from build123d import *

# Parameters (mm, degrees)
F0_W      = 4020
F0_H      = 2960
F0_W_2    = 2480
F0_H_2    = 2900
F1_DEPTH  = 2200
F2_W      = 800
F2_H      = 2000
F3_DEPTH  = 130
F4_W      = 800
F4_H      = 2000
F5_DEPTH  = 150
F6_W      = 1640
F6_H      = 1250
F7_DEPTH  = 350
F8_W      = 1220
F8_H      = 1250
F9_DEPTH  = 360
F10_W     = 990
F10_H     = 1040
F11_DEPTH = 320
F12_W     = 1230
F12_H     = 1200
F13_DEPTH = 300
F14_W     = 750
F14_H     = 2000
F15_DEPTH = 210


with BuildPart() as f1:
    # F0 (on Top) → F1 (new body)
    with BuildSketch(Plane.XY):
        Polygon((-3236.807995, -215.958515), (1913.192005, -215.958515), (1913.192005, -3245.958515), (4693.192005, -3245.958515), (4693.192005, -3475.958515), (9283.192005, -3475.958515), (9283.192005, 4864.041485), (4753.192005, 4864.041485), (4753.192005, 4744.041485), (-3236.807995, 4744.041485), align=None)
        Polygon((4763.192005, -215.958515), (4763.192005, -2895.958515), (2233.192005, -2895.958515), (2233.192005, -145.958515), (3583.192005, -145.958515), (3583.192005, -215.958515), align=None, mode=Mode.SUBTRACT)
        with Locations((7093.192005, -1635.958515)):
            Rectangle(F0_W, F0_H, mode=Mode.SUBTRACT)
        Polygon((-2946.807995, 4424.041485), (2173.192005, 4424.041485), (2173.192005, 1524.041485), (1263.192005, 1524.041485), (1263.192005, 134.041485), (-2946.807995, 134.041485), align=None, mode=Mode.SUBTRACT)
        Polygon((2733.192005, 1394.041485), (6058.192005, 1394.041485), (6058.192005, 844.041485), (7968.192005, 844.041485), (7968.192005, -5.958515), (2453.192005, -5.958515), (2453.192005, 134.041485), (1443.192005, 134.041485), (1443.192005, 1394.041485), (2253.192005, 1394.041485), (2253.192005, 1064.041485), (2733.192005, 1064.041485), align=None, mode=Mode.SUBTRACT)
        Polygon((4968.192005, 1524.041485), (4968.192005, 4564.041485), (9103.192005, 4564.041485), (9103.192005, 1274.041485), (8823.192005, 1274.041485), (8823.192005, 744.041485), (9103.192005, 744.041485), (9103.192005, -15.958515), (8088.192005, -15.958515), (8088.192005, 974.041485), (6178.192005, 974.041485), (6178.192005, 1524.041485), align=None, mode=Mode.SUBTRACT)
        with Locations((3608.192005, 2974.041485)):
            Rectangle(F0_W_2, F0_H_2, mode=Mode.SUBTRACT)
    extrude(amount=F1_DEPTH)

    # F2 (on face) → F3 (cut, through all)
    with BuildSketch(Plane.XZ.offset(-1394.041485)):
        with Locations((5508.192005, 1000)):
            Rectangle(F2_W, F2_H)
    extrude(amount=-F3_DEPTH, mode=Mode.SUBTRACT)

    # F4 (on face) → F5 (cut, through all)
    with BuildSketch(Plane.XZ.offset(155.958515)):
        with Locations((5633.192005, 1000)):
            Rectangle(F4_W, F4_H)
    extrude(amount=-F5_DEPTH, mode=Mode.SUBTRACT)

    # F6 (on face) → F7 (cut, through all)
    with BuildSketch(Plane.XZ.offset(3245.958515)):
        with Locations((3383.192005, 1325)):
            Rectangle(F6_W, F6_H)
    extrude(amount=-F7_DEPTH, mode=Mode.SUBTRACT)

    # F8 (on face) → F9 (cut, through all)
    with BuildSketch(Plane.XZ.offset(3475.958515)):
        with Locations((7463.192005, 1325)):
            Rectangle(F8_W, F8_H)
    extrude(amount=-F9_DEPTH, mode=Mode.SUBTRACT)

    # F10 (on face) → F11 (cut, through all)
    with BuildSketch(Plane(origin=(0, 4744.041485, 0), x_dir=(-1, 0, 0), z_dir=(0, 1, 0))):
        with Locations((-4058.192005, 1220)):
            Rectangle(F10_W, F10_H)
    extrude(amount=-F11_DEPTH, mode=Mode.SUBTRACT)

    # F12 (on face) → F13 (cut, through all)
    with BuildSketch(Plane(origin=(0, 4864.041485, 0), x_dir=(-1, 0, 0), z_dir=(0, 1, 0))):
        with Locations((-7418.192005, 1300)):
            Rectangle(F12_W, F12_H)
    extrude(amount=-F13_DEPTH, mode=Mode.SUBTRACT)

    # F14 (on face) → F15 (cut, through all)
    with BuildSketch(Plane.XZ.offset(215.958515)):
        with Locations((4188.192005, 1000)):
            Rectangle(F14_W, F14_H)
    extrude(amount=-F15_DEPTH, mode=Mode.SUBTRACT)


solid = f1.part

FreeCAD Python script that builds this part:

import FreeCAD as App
import Part
import Sketcher
from FreeCAD import Vector
Q = App.Units.Quantity

doc = App.newDocument("Part")
body = doc.addObject("PartDesign::Body", "Body")

sketch1 = body.newObject("Sketcher::SketchObject", "Sketch")
sketch1.AttachmentSupport = (doc.getObject("XY_Plane"), [""])
sketch1.MapMode = "FlatFace"
sketch1.addGeometry(Part.LineSegment(Vector(-3237, -216, 0), Vector(1913, -216, 0)), False)
sketch1.addGeometry(Part.LineSegment(Vector(1913, -216, 0), Vector(1913, -3246, 0)), False)
sketch1.addGeometry(Part.LineSegment(Vector(1913, -3246, 0), Vector(4693, -3246, 0)), False)
sketch1.addGeometry(Part.LineSegment(Vector(4693, -3246, 0), Vector(4693, -3476, 0)), False)
sketch1.addGeometry(Part.LineSegment(Vector(4693, -3476, 0), Vector(9283, -3476, 0)), False)
sketch1.addGeometry(Part.LineSegment(Vector(9283, -3476, 0), Vector(9283, 4864, 0)), False)
sketch1.addGeometry(Part.LineSegment(Vector(9283, 4864, 0), Vector(4753, 4864, 0)), False)
sketch1.addGeometry(Part.LineSegment(Vector(4753, 4864, 0), Vector(4753, 4744, 0)), False)
sketch1.addGeometry(Part.LineSegment(Vector(4753, 4744, 0), Vector(-3237, 4744, 0)), False)
sketch1.addGeometry(Part.LineSegment(Vector(-3237, 4744, 0), Vector(-3237, -216, 0)), False)
sketch1.addGeometry(Part.LineSegment(Vector(3583, -216, 0), Vector(4763, -216, 0)), False)
sketch1.addGeometry(Part.LineSegment(Vector(4763, -216, 0), Vector(4763, -2896, 0)), False)
sketch1.addGeometry(Part.LineSegment(Vector(4763, -2896, 0), Vector(2233, -2896, 0)), False)
sketch1.addGeometry(Part.LineSegment(Vector(2233, -2896, 0), Vector(2233, -146, 0)), False)
sketch1.addGeometry(Part.LineSegment(Vector(2233, -146, 0), Vector(3583, -146, 0)), False)
sketch1.addGeometry(Part.LineSegment(Vector(3583, -146, 0), Vector(3583, -216, 0)), False)
sketch1.addGeometry(Part.LineSegment(Vector(9103, -3116, 0), Vector(5083, -3116, 0)), False)
sketch1.addGeometry(Part.LineSegment(Vector(5083, -3116, 0), Vector(5083, -156, 0)), False)
sketch1.addGeometry(Part.LineSegment(Vector(5083, -156, 0), Vector(9103, -156, 0)), False)
sketch1.addGeometry(Part.LineSegment(Vector(9103, -156, 0), Vector(9103, -3116, 0)), False)
sketch1.addGeometry(Part.LineSegment(Vector(2733, 1064, 0), Vector(2733, 1394, 0)), False)
sketch1.addGeometry(Part.LineSegment(Vector(2733, 1394, 0), Vector(6058, 1394, 0)), False)
sketch1.addGeometry(Part.LineSegment(Vector(6058, 1394, 0), Vector(6058, 844, 0)), False)
sketch1.addGeometry(Part.LineSegment(Vector(6058, 844, 0), Vector(7968, 844, 0)), False)
sketch1.addGeometry(Part.LineSegment(Vector(7968, 844, 0), Vector(7968, -6, 0)), False)
sketch1.addGeometry(Part.LineSegment(Vector(7968, -6, 0), Vector(2453, -6, 0)), False)
sketch1.addGeometry(Part.LineSegment(Vector(2453, -6, 0), Vector(2453, 134, 0)), False)
sketch1.addGeometry(Part.LineSegment(Vector(2453, 134, 0), Vector(1443, 134, 0)), False)
sketch1.addGeometry(Part.LineSegment(Vector(1443, 134, 0), Vector(1443, 1394, 0)), False)
sketch1.addGeometry(Part.LineSegment(Vector(1443, 1394, 0), Vector(2253, 1394, 0)), False)
sketch1.addGeometry(Part.LineSegment(Vector(2253, 1394, 0), Vector(2253, 1064, 0)), False)
sketch1.addGeometry(Part.LineSegment(Vector(2253, 1064, 0), Vector(2733, 1064, 0)), False)
sketch1.addGeometry(Part.LineSegment(Vector(-2947, 134, 0), Vector(-2947, 4424, 0)), False)
sketch1.addGeometry(Part.LineSegment(Vector(-2947, 4424, 0), Vector(2173, 4424, 0)), False)
sketch1.addGeometry(Part.LineSegment(Vector(2173, 4424, 0), Vector(2173, 1524, 0)), False)
sketch1.addGeometry(Part.LineSegment(Vector(2173, 1524, 0), Vector(1263, 1524, 0)), False)
sketch1.addGeometry(Part.LineSegment(Vector(1263, 1524, 0), Vector(1263, 134, 0)), False)
sketch1.addGeometry(Part.LineSegment(Vector(1263, 134, 0), Vector(-2947, 134, 0)), False)
sketch1.addGeometry(Part.LineSegment(Vector(6178, 1524, 0), Vector(4968, 1524, 0)), False)
sketch1.addGeometry(Part.LineSegment(Vector(4968, 1524, 0), Vector(4968, 4564, 0)), False)
sketch1.addGeometry(Part.LineSegment(Vector(4968, 4564, 0), Vector(9103, 4564, 0)), False)
sketch1.addGeometry(Part.LineSegment(Vector(9103, 4564, 0), Vector(9103, 1274, 0)), False)
sketch1.addGeometry(Part.LineSegment(Vector(9103, 1274, 0), Vector(8823, 1274, 0)), False)
sketch1.addGeometry(Part.LineSegment(Vector(8823, 1274, 0), Vector(8823, 744, 0)), False)
sketch1.addGeometry(Part.LineSegment(Vector(8823, 744, 0), Vector(9103, 744, 0)), False)
sketch1.addGeometry(Part.LineSegment(Vector(9103, 744, 0), Vector(9103, -16, 0)), False)
sketch1.addGeometry(Part.LineSegment(Vector(9103, -16, 0), Vector(8088, -16, 0)), False)
sketch1.addGeometry(Part.LineSegment(Vector(8088, -16, 0), Vector(8088, 974, 0)), False)
sketch1.addGeometry(Part.LineSegment(Vector(8088, 974, 0), Vector(6178, 974, 0)), False)
sketch1.addGeometry(Part.LineSegment(Vector(6178, 974, 0), Vector(6178, 1524, 0)), False)
sketch1.addGeometry(Part.LineSegment(Vector(4848, 1524, 0), Vector(2368, 1524, 0)), False)
sketch1.addGeometry(Part.LineSegment(Vector(2368, 1524, 0), Vector(2368, 4424, 0)), False)
sketch1.addGeometry(Part.LineSegment(Vector(2368, 4424, 0), Vector(4848, 4424, 0)), False)
sketch1.addGeometry(Part.LineSegment(Vector(4848, 4424, 0), Vector(4848, 1524, 0)), False)
sketch1.addConstraint(Sketcher.Constraint("Coincident", 0, 2, 1, 1))
sketch1.addConstraint(Sketcher.Constraint("Coincident", 1, 2, 2, 1))
sketch1.addConstraint(Sketcher.Constraint("Coincident", 2, 2, 3, 1))
sketch1.addConstraint(Sketcher.Constraint("Coincident", 3, 2, 4, 1))
sketch1.addConstraint(Sketcher.Constraint("Coincident", 4, 2, 5, 1))
sketch1.addConstraint(Sketcher.Constraint("Coincident", 5, 2, 6, 1))
sketch1.addConstraint(Sketcher.Constraint("Coincident", 6, 2, 7, 1))
sketch1.addConstraint(Sketcher.Constraint("Coincident", 7, 2, 8, 1))
sketch1.addConstraint(Sketcher.Constraint("Coincident", 8, 2, 9, 1))
sketch1.addConstraint(Sketcher.Constraint("Coincident", 9, 2, 0, 1))
sketch1.addConstraint(Sketcher.Constraint("Coincident", 10, 2, 11, 1))
sketch1.addConstraint(Sketcher.Constraint("Coincident", 11, 2, 12, 1))
sketch1.addConstraint(Sketcher.Constraint("Coincident", 12, 2, 13, 1))
sketch1.addConstraint(Sketcher.Constraint("Coincident", 13, 2, 14, 1))
sketch1.addConstraint(Sketcher.Constraint("Coincident", 14, 2, 15, 1))
sketch1.addConstraint(Sketcher.Constraint("Coincident", 15, 2, 10, 1))
sketch1.addConstraint(Sketcher.Constraint("Coincident", 16, 2, 17, 1))
sketch1.addConstraint(Sketcher.Constraint("Coincident", 17, 2, 18, 1))
sketch1.addConstraint(Sketcher.Constraint("Coincident", 18, 2, 19, 1))
sketch1.addConstraint(Sketcher.Constraint("Coincident", 19, 2, 16, 1))
sketch1.addConstraint(Sketcher.Constraint("Coincident", 20, 2, 21, 1))
sketch1.addConstraint(Sketcher.Constraint("Coincident", 21, 2, 22, 1))
sketch1.addConstraint(Sketcher.Constraint("Coincident", 22, 2, 23, 1))
sketch1.addConstraint(Sketcher.Constraint("Coincident", 23, 2, 24, 1))
sketch1.addConstraint(Sketcher.Constraint("Coincident", 24, 2, 25, 1))
sketch1.addConstraint(Sketcher.Constraint("Coincident", 25, 2, 26, 1))
sketch1.addConstraint(Sketcher.Constraint("Coincident", 26, 2, 27, 1))
sketch1.addConstraint(Sketcher.Constraint("Coincident", 27, 2, 28, 1))
sketch1.addConstraint(Sketcher.Constraint("Coincident", 28, 2, 29, 1))
sketch1.addConstraint(Sketcher.Constraint("Coincident", 29, 2, 30, 1))
sketch1.addConstraint(Sketcher.Constraint("Coincident", 30, 2, 31, 1))
sketch1.addConstraint(Sketcher.Constraint("Coincident", 31, 2, 20, 1))
sketch1.addConstraint(Sketcher.Constraint("Coincident", 32, 2, 33, 1))
sketch1.addConstraint(Sketcher.Constraint("Coincident", 33, 2, 34, 1))
sketch1.addConstraint(Sketcher.Constraint("Coincident", 34, 2, 35, 1))
sketch1.addConstraint(Sketcher.Constraint("Coincident", 35, 2, 36, 1))
sketch1.addConstraint(Sketcher.Constraint("Coincident", 36, 2, 37, 1))
sketch1.addConstraint(Sketcher.Constraint("Coincident", 37, 2, 32, 1))
sketch1.addConstraint(Sketcher.Constraint("Coincident", 38, 2, 39, 1))
sketch1.addConstraint(Sketcher.Constraint("Coincident", 39, 2, 40, 1))
sketch1.addConstraint(Sketcher.Constraint("Coincident", 40, 2, 41, 1))
sketch1.addConstraint(Sketcher.Constraint("Coincident", 41, 2, 42, 1))
sketch1.addConstraint(Sketcher.Constraint("Coincident", 42, 2, 43, 1))
sketch1.addConstraint(Sketcher.Constraint("Coincident", 43, 2, 44, 1))
sketch1.addConstraint(Sketcher.Constraint("Coincident", 44, 2, 45, 1))
sketch1.addConstraint(Sketcher.Constraint("Coincident", 45, 2, 46, 1))
sketch1.addConstraint(Sketcher.Constraint("Coincident", 46, 2, 47, 1))
sketch1.addConstraint(Sketcher.Constraint("Coincident", 47, 2, 48, 1))
sketch1.addConstraint(Sketcher.Constraint("Coincident", 48, 2, 49, 1))
sketch1.addConstraint(Sketcher.Constraint("Coincident", 49, 2, 38, 1))
sketch1.addConstraint(Sketcher.Constraint("Coincident", 50, 2, 51, 1))
sketch1.addConstraint(Sketcher.Constraint("Coincident", 51, 2, 52, 1))
sketch1.addConstraint(Sketcher.Constraint("Coincident", 52, 2, 53, 1))
sketch1.addConstraint(Sketcher.Constraint("Coincident", 53, 2, 50, 1))
sketch1.addConstraint(Sketcher.Constraint("Horizontal", 0))
sketch1.addConstraint(Sketcher.Constraint("Vertical", 1))
sketch1.addConstraint(Sketcher.Constraint("Horizontal", 2))
sketch1.addConstraint(Sketcher.Constraint("Vertical", 3))
sketch1.addConstraint(Sketcher.Constraint("Horizontal", 4))
sketch1.addConstraint(Sketcher.Constraint("Vertical", 5))
sketch1.addConstraint(Sketcher.Constraint("Horizontal", 6))
sketch1.addConstraint(Sketcher.Constraint("Vertical", 7))
sketch1.addConstraint(Sketcher.Constraint("Horizontal", 8))
sketch1.addConstraint(Sketcher.Constraint("Vertical", 9))
sketch1.addConstraint(Sketcher.Constraint("Horizontal", 10))
sketch1.addConstraint(Sketcher.Constraint("Vertical", 11))
sketch1.addConstraint(Sketcher.Constraint("Horizontal", 12))
sketch1.addConstraint(Sketcher.Constraint("Vertical", 13))
sketch1.addConstraint(Sketcher.Constraint("Horizontal", 14))
sketch1.addConstraint(Sketcher.Constraint("Vertical", 15))
sketch1.addConstraint(Sketcher.Constraint("Horizontal", 16))
sketch1.addConstraint(Sketcher.Constraint("Vertical", 17))
sketch1.addConstraint(Sketcher.Constraint("Horizontal", 18))
sketch1.addConstraint(Sketcher.Constraint("Vertical", 19))
sketch1.addConstraint(Sketcher.Constraint("Vertical", 20))
sketch1.addConstraint(Sketcher.Constraint("Horizontal", 21))
sketch1.addConstraint(Sketcher.Constraint("Vertical", 22))
sketch1.addConstraint(Sketcher.Constraint("Horizontal", 23))
sketch1.addConstraint(Sketcher.Constraint("Vertical", 24))
sketch1.addConstraint(Sketcher.Constraint("Horizontal", 25))
sketch1.addConstraint(Sketcher.Constraint("Vertical", 26))
sketch1.addConstraint(Sketcher.Constraint("Horizontal", 27))
sketch1.addConstraint(Sketcher.Constraint("Vertical", 28))
sketch1.addConstraint(Sketcher.Constraint("Horizontal", 29))
sketch1.addConstraint(Sketcher.Constraint("Vertical", 30))
sketch1.addConstraint(Sketcher.Constraint("Horizontal", 31))
sketch1.addConstraint(Sketcher.Constraint("Vertical", 32))
sketch1.addConstraint(Sketcher.Constraint("Horizontal", 33))
sketch1.addConstraint(Sketcher.Constraint("Vertical", 34))
sketch1.addConstraint(Sketcher.Constraint("Horizontal", 35))
sketch1.addConstraint(Sketcher.Constraint("Vertical", 36))
sketch1.addConstraint(Sketcher.Constraint("Horizontal", 37))
sketch1.addConstraint(Sketcher.Constraint("Horizontal", 38))
sketch1.addConstraint(Sketcher.Constraint("Vertical", 39))
sketch1.addConstraint(Sketcher.Constraint("Horizontal", 40))
sketch1.addConstraint(Sketcher.Constraint("Vertical", 41))
sketch1.addConstraint(Sketcher.Constraint("Horizontal", 42))
sketch1.addConstraint(Sketcher.Constraint("Vertical", 43))
sketch1.addConstraint(Sketcher.Constraint("Horizontal", 44))
sketch1.addConstraint(Sketcher.Constraint("Vertical", 45))
sketch1.addConstraint(Sketcher.Constraint("Horizontal", 46))
sketch1.addConstraint(Sketcher.Constraint("Vertical", 47))
sketch1.addConstraint(Sketcher.Constraint("Horizontal", 48))
sketch1.addConstraint(Sketcher.Constraint("Vertical", 49))
sketch1.addConstraint(Sketcher.Constraint("Horizontal", 50))
sketch1.addConstraint(Sketcher.Constraint("Vertical", 51))
sketch1.addConstraint(Sketcher.Constraint("Horizontal", 52))
sketch1.addConstraint(Sketcher.Constraint("Vertical", 53))
sketch1.addConstraint(Sketcher.Constraint("Horizontal", 9, 2, 10, 2))
sketch1.addConstraint(Sketcher.Constraint("Horizontal", 21, 2, 28, 2))
sketch1.addConstraint(Sketcher.Constraint("Horizontal", 27, 2, 36, 2))
sketch1.addConstraint(Sketcher.Constraint("Horizontal", 35, 2, 38, 2))
sketch1.addConstraint(Sketcher.Constraint("Horizontal", 49, 2, 50, 2))
sketch1.addConstraint(Sketcher.Constraint("Horizontal", 33, 2, 51, 2))
sketch1.addConstraint(Sketcher.Constraint("Vertical", 19, 2, 40, 2))
sketch1.addConstraint(Sketcher.Constraint("Vertical", 41, 2, 44, 2))
sketch1.addConstraint(Sketcher.Constraint("Equal", 23, 48))
sketch1.addConstraint(Sketcher.Constraint("Equal", 22, 49))
sketch1.addConstraint(Sketcher.Constraint("DistanceX", 0, 1, 0, 2, Q("5150 mm")))
sketch1.addConstraint(Sketcher.Constraint("DistanceX", 2, 1, 2, 2, Q("2780 mm")))
sketch1.addConstraint(Sketcher.Constraint("DistanceX", 4, 1, 4, 2, Q("4590 mm")))
sketch1.addConstraint(Sketcher.Constraint("DistanceX", 6, 2, 6, 1, Q("4530 mm")))
sketch1.addConstraint(Sketcher.Constraint("DistanceX", 10, 1, 10, 2, Q("1180 mm")))
sketch1.addConstraint(Sketcher.Constraint("DistanceX", 12, 2, 12, 1, Q("2530 mm")))
sketch1.addConstraint(Sketcher.Constraint("DistanceX", 16, 2, 16, 1, Q("4020 mm")))
sketch1.addConstraint(Sketcher.Constraint("DistanceX", 21, 1, 21, 2, Q("3325 mm")))
sketch1.addConstraint(Sketcher.Constraint("DistanceX", 23, 1, 23, 2, Q("1910 mm")))
sketch1.addConstraint(Sketcher.Constraint("DistanceX", 25, 2, 25, 1, Q("5515 mm")))
sketch1.addConstraint(Sketcher.Constraint("DistanceX", 27, 2, 27, 1, Q("1010 mm")))
sketch1.addConstraint(Sketcher.Constraint("DistanceX", 29, 1, 29, 2, Q("810 mm")))
sketch1.addConstraint(Sketcher.Constraint("DistanceX", 33, 1, 33, 2, Q("5120 mm")))
sketch1.addConstraint(Sketcher.Constraint("DistanceX", 35, 2, 35, 1, Q("910 mm")))
sketch1.addConstraint(Sketcher.Constraint("DistanceX", 38, 2, 38, 1, Q("1210 mm")))
sketch1.addConstraint(Sketcher.Constraint("DistanceX", 40, 1, 40, 2, Q("4135 mm")))
sketch1.addConstraint(Sketcher.Constraint("DistanceX", 42, 2, 42, 1, Q("280 mm")))
sketch1.addConstraint(Sketcher.Constraint("DistanceX", 50, 2, 50, 1, Q("2480 mm")))
sketch1.addConstraint(Sketcher.Constraint("DistanceY", 1, 2, 1, 1, Q("3030 mm")))
sketch1.addConstraint(Sketcher.Constraint("DistanceY", 3, 2, 3, 1, Q("230 mm")))
sketch1.addConstraint(Sketcher.Constraint("DistanceY", 5, 1, 5, 2, Q("8340 mm")))
sketch1.addConstraint(Sketcher.Constraint("DistanceY", 7, 2, 7, 1, Q("120 mm")))
sketch1.addConstraint(Sketcher.Constraint("DistanceY", 11, 2, 11, 1, Q("2680 mm")))
sketch1.addConstraint(Sketcher.Constraint("DistanceY", 13, 1, 13, 2, Q("2750 mm")))
sketch1.addConstraint(Sketcher.Constraint("DistanceY", 17, 1, 17, 2, Q("2960 mm")))
sketch1.addConstraint(Sketcher.Constraint("DistanceY", 20, 1, 20, 2, Q("330 mm")))
sketch1.addConstraint(Sketcher.Constraint("DistanceY", 22, 2, 22, 1, Q("550 mm")))
sketch1.addConstraint(Sketcher.Constraint("DistanceY", 24, 2, 24, 1, Q("850 mm")))
sketch1.addConstraint(Sketcher.Constraint("DistanceY", 26, 1, 26, 2, Q("140 mm")))
sketch1.addConstraint(Sketcher.Constraint("DistanceY", 32, 1, 32, 2, Q("4290 mm")))
sketch1.addConstraint(Sketcher.Constraint("DistanceY", 34, 2, 34, 1, Q("2900 mm")))
sketch1.addConstraint(Sketcher.Constraint("DistanceY", 39, 1, 39, 2, Q("3040 mm")))
sketch1.addConstraint(Sketcher.Constraint("DistanceY", 41, 2, 41, 1, Q("3290 mm")))
sketch1.addConstraint(Sketcher.Constraint("DistanceY", 43, 2, 43, 1, Q("530 mm")))
sketch1.addConstraint(Sketcher.Constraint("DistanceY", 45, 2, 45, 1, Q("760 mm")))
sketch1.addConstraint(Sketcher.Constraint("DistanceX", 0, 2, 10, 2, Q("2850 mm")))
sketch1.addConstraint(Sketcher.Constraint("DistanceX", 11, 2, 16, 2, Q("320 mm")))
sketch1.addConstraint(Sketcher.Constraint("DistanceY", 16, 2, 11, 2, Q("220 mm")))
sketch1.addConstraint(Sketcher.Constraint("DistanceX", 13, 2, 20, 2, Q("500 mm")))
sketch1.addConstraint(Sketcher.Constraint("DistanceY", 13, 2, 20, 2, Q("1540 mm")))
sketch1.addConstraint(Sketcher.Constraint("DistanceX", 8, 2, 32, 2, Q("290 mm")))
sketch1.addConstraint(Sketcher.Constraint("DistanceX", 29, 2, 50, 2, Q("115 mm")))
sketch1.addConstraint(Sketcher.Constraint("DistanceX", -1, 1, 0, 2, Q("1913.192005 mm")))
sketch1.addConstraint(Sketcher.Constraint("DistanceY", 0, 2, -1, 1, Q("215.958515 mm")))
pad1 = body.newObject("PartDesign::Pad", "Pad")
pad1.Profile = sketch1
pad1.Length = 2200

sketch2 = body.newObject("Sketcher::SketchObject", "Sketch001")
sketch2.AttachmentSupport = (doc.getObject("XZ_Plane"), [""])
sketch2.MapMode = "FlatFace"
sketch2.AttachmentOffset = App.Placement(Vector(0, 0, -1394.041485), App.Rotation())
sketch2.addGeometry(Part.LineSegment(Vector(5108, 2000, 0), Vector(5108, 0, 0)), False)
sketch2.addGeometry(Part.LineSegment(Vector(5108, 0, 0), Vector(5908, 0, 0)), False)
sketch2.addGeometry(Part.LineSegment(Vector(5908, 0, 0), Vector(5908, 2000, 0)), False)
sketch2.addGeometry(Part.LineSegment(Vector(5908, 2000, 0), Vector(5108, 2000, 0)), False)
sketch2.addConstraint(Sketcher.Constraint("Coincident", 0, 2, 1, 1))
sketch2.addConstraint(Sketcher.Constraint("Coincident", 1, 2, 2, 1))
sketch2.addConstraint(Sketcher.Constraint("Coincident", 2, 2, 3, 1))
sketch2.addConstraint(Sketcher.Constraint("Coincident", 3, 2, 0, 1))
sketch2.addConstraint(Sketcher.Constraint("Vertical", 0))
sketch2.addConstraint(Sketcher.Constraint("Horizontal", 1))
sketch2.addConstraint(Sketcher.Constraint("Vertical", 2))
sketch2.addConstraint(Sketcher.Constraint("Horizontal", 3))
sketch2.addConstraint(Sketcher.Constraint("PointOnObject", 0, 2, -1))
sketch2.addConstraint(Sketcher.Constraint("DistanceX", 1, 1, 1, 2, Q("800 mm")))
sketch2.addConstraint(Sketcher.Constraint("DistanceY", 0, 2, 0, 1, Q("2000 mm")))
sketch2.addConstraint(Sketcher.Constraint("DistanceX", -1, 1, 0, 2, Q("5108.192005 mm")))
pocket1 = body.newObject("PartDesign::Pocket", "Pocket")
pocket1.Profile = sketch2
pocket1.Length = 130

sketch3 = body.newObject("Sketcher::SketchObject", "Sketch002")
sketch3.AttachmentSupport = (doc.getObject("XZ_Plane"), [""])
sketch3.MapMode = "FlatFace"
sketch3.AttachmentOffset = App.Placement(Vector(0, 0, 155.958515), App.Rotation())
sketch3.addGeometry(Part.LineSegment(Vector(5233, 2000, 0), Vector(5233, 0, 0)), False)
sketch3.addGeometry(Part.LineSegment(Vector(5233, 0, 0), Vector(6033, 0, 0)), False)
sketch3.addGeometry(Part.LineSegment(Vector(6033, 0, 0), Vector(6033, 2000, 0)), False)
sketch3.addGeometry(Part.LineSegment(Vector(6033, 2000, 0), Vector(5233, 2000, 0)), False)
sketch3.addConstraint(Sketcher.Constraint("Coincident", 0, 2, 1, 1))
sketch3.addConstraint(Sketcher.Constraint("Coincident", 1, 2, 2, 1))
sketch3.addConstraint(Sketcher.Constraint("Coincident", 2, 2, 3, 1))
sketch3.addConstraint(Sketcher.Constraint("Coincident", 3, 2, 0, 1))
sketch3.addConstraint(Sketcher.Constraint("Vertical", 0))
sketch3.addConstraint(Sketcher.Constraint("Horizontal", 1))
sketch3.addConstraint(Sketcher.Constraint("Vertical", 2))
sketch3.addConstraint(Sketcher.Constraint("Horizontal", 3))
sketch3.addConstraint(Sketcher.Constraint("PointOnObject", 0, 2, -1))
sketch3.addConstraint(Sketcher.Constraint("DistanceX", 1, 1, 1, 2, Q("800 mm")))
sketch3.addConstraint(Sketcher.Constraint("DistanceY", 0, 2, 0, 1, Q("2000 mm")))
sketch3.addConstraint(Sketcher.Constraint("DistanceX", -1, 1, 0, 2, Q("5233.192005 mm")))
pocket2 = body.newObject("PartDesign::Pocket", "Pocket001")
pocket2.Profile = sketch3
pocket2.Length = 150

sketch4 = body.newObject("Sketcher::SketchObject", "Sketch003")
sketch4.AttachmentSupport = (doc.getObject("XZ_Plane"), [""])
sketch4.MapMode = "FlatFace"
sketch4.AttachmentOffset = App.Placement(Vector(0, 0, 3245.958515), App.Rotation())
sketch4.addGeometry(Part.LineSegment(Vector(2563, 1950, 0), Vector(2563, 700, 0)), False)
sketch4.addGeometry(Part.LineSegment(Vector(2563, 700, 0), Vector(4203, 700, 0)), False)
sketch4.addGeometry(Part.LineSegment(Vector(4203, 700, 0), Vector(4203, 1950, 0)), False)
sketch4.addGeometry(Part.LineSegment(Vector(4203, 1950, 0), Vector(2563, 1950, 0)), False)
sketch4.addConstraint(Sketcher.Constraint("Coincident", 0, 2, 1, 1))
sketch4.addConstraint(Sketcher.Constraint("Coincident", 1, 2, 2, 1))
sketch4.addConstraint(Sketcher.Constraint("Coincident", 2, 2, 3, 1))
sketch4.addConstraint(Sketcher.Constraint("Coincident", 3, 2, 0, 1))
sketch4.addConstraint(Sketcher.Constraint("Vertical", 0))
sketch4.addConstraint(Sketcher.Constraint("Horizontal", 1))
sketch4.addConstraint(Sketcher.Constraint("Vertical", 2))
sketch4.addConstraint(Sketcher.Constraint("Horizontal", 3))
sketch4.addConstraint(Sketcher.Constraint("DistanceX", 1, 1, 1, 2, Q("1640 mm")))
sketch4.addConstraint(Sketcher.Constraint("DistanceY", 0, 2, 0, 1, Q("1250 mm")))
sketch4.addConstraint(Sketcher.Constraint("DistanceY", -1, 1, 0, 2, Q("700 mm")))
sketch4.addConstraint(Sketcher.Constraint("DistanceX", -1, 1, 0, 2, Q("2563.192005 mm")))
pocket3 = body.newObject("PartDesign::Pocket", "Pocket002")
pocket3.Profile = sketch4
pocket3.Length = 350

sketch5 = body.newObject("Sketcher::SketchObject", "Sketch004")
sketch5.AttachmentSupport = (doc.getObject("XZ_Plane"), [""])
sketch5.MapMode = "FlatFace"
sketch5.AttachmentOffset = App.Placement(Vector(0, 0, 3475.958515), App.Rotation())
sketch5.addGeometry(Part.LineSegment(Vector(6853, 1950, 0), Vector(6853, 700, 0)), False)
sketch5.addGeometry(Part.LineSegment(Vector(6853, 700, 0), Vector(8073, 700, 0)), False)
sketch5.addGeometry(Part.LineSegment(Vector(8073, 700, 0), Vector(8073, 1950, 0)), False)
sketch5.addGeometry(Part.LineSegment(Vector(8073, 1950, 0), Vector(6853, 1950, 0)), False)
sketch5.addConstraint(Sketcher.Constraint("Coincident", 0, 2, 1, 1))
sketch5.addConstraint(Sketcher.Constraint("Coincident", 1, 2, 2, 1))
sketch5.addConstraint(Sketcher.Constraint("Coincident", 2, 2, 3, 1))
sketch5.addConstraint(Sketcher.Constraint("Coincident", 3, 2, 0, 1))
sketch5.addConstraint(Sketcher.Constraint("Vertical", 0))
sketch5.addConstraint(Sketcher.Constraint("Horizontal", 1))
sketch5.addConstraint(Sketcher.Constraint("Vertical", 2))
sketch5.addConstraint(Sketcher.Constraint("Horizontal", 3))
sketch5.addConstraint(Sketcher.Constraint("DistanceX", 1, 1, 1, 2, Q("1220 mm")))
sketch5.addConstraint(Sketcher.Constraint("DistanceY", 0, 2, 0, 1, Q("1250 mm")))
sketch5.addConstraint(Sketcher.Constraint("DistanceY", -1, 1, 0, 2, Q("700 mm")))
sketch5.addConstraint(Sketcher.Constraint("DistanceX", -1, 1, 0, 2, Q("6853.192005 mm")))
pocket4 = body.newObject("PartDesign::Pocket", "Pocket003")
pocket4.Profile = sketch5
pocket4.Length = 360

sketch6 = body.newObject("Sketcher::SketchObject", "Sketch005")
sketch6.AttachmentSupport = (doc.getObject("XZ_Plane"), [""])
sketch6.MapMode = "FlatFace"
sketch6.AttachmentOffset = App.Placement(Vector(0, 0, -4744.041485), App.Rotation())
sketch6.addGeometry(Part.LineSegment(Vector(4553, 1740, 0), Vector(4553, 700, 0)), False)
sketch6.addGeometry(Part.LineSegment(Vector(4553, 700, 0), Vector(3563, 700, 0)), False)
sketch6.addGeometry(Part.LineSegment(Vector(3563, 700, 0), Vector(3563, 1740, 0)), False)
sketch6.addGeometry(Part.LineSegment(Vector(3563, 1740, 0), Vector(4553, 1740, 0)), False)
sketch6.addConstraint(Sketcher.Constraint("Coincident", 0, 2, 1, 1))
sketch6.addConstraint(Sketcher.Constraint("Coincident", 1, 2, 2, 1))
sketch6.addConstraint(Sketcher.Constraint("Coincident", 2, 2, 3, 1))
sketch6.addConstraint(Sketcher.Constraint("Coincident", 3, 2, 0, 1))
sketch6.addConstraint(Sketcher.Constraint("Vertical", 0))
sketch6.addConstraint(Sketcher.Constraint("Horizontal", 1))
sketch6.addConstraint(Sketcher.Constraint("Vertical", 2))
sketch6.addConstraint(Sketcher.Constraint("Horizontal", 3))
sketch6.addConstraint(Sketcher.Constraint("DistanceX", 1, 2, 1, 1, Q("990 mm")))
sketch6.addConstraint(Sketcher.Constraint("DistanceY", 0, 2, 0, 1, Q("1040 mm")))
sketch6.addConstraint(Sketcher.Constraint("DistanceY", -1, 1, 0, 2, Q("700 mm")))
sketch6.addConstraint(Sketcher.Constraint("DistanceX", -1, 1, 0, 2, Q("4553.192005 mm")))
pocket5 = body.newObject("PartDesign::Pocket", "Pocket004")
pocket5.Profile = sketch6
pocket5.Length = 320
pocket5.Reversed = True

sketch7 = body.newObject("Sketcher::SketchObject", "Sketch006")
sketch7.AttachmentSupport = (doc.getObject("XZ_Plane"), [""])
sketch7.MapMode = "FlatFace"
sketch7.AttachmentOffset = App.Placement(Vector(0, 0, -4864.041485), App.Rotation())
sketch7.addGeometry(Part.LineSegment(Vector(8033, 1900, 0), Vector(8033, 700, 0)), False)
sketch7.addGeometry(Part.LineSegment(Vector(8033, 700, 0), Vector(6803, 700, 0)), False)
sketch7.addGeometry(Part.LineSegment(Vector(6803, 700, 0), Vector(6803, 1900, 0)), False)
sketch7.addGeometry(Part.LineSegment(Vector(6803, 1900, 0), Vector(8033, 1900, 0)), False)
sketch7.addConstraint(Sketcher.Constraint("Coincident", 0, 2, 1, 1))
sketch7.addConstraint(Sketcher.Constraint("Coincident", 1, 2, 2, 1))
sketch7.addConstraint(Sketcher.Constraint("Coincident", 2, 2, 3, 1))
sketch7.addConstraint(Sketcher.Constraint("Coincident", 3, 2, 0, 1))
sketch7.addConstraint(Sketcher.Constraint("Vertical", 0))
sketch7.addConstraint(Sketcher.Constraint("Horizontal", 1))
sketch7.addConstraint(Sketcher.Constraint("Vertical", 2))
sketch7.addConstraint(Sketcher.Constraint("Horizontal", 3))
sketch7.addConstraint(Sketcher.Constraint("DistanceX", 1, 2, 1, 1, Q("1230 mm")))
sketch7.addConstraint(Sketcher.Constraint("DistanceY", 0, 2, 0, 1, Q("1200 mm")))
sketch7.addConstraint(Sketcher.Constraint("DistanceY", -1, 1, 0, 2, Q("700 mm")))
sketch7.addConstraint(Sketcher.Constraint("DistanceX", -1, 1, 0, 2, Q("8033.192005 mm")))
pocket6 = body.newObject("PartDesign::Pocket", "Pocket005")
pocket6.Profile = sketch7
pocket6.Length = 300
pocket6.Reversed = True

sketch8 = body.newObject("Sketcher::SketchObject", "Sketch007")
sketch8.AttachmentSupport = (doc.getObject("XZ_Plane"), [""])
sketch8.MapMode = "FlatFace"
sketch8.AttachmentOffset = App.Placement(Vector(0, 0, 215.958515), App.Rotation())
sketch8.addGeometry(Part.LineSegment(Vector(3813, 2000, 0), Vector(3813, 0, 0)), False)
sketch8.addGeometry(Part.LineSegment(Vector(3813, 0, 0), Vector(4563, 0, 0)), False)
sketch8.addGeometry(Part.LineSegment(Vector(4563, 0, 0), Vector(4563, 2000, 0)), False)
sketch8.addGeometry(Part.LineSegment(Vector(4563, 2000, 0), Vector(3813, 2000, 0)), False)
sketch8.addConstraint(Sketcher.Constraint("Coincident", 0, 2, 1, 1))
sketch8.addConstraint(Sketcher.Constraint("Coincident", 1, 2, 2, 1))
sketch8.addConstraint(Sketcher.Constraint("Coincident", 2, 2, 3, 1))
sketch8.addConstraint(Sketcher.Constraint("Coincident", 3, 2, 0, 1))
sketch8.addConstraint(Sketcher.Constraint("Vertical", 0))
sketch8.addConstraint(Sketcher.Constraint("Horizontal", 1))
sketch8.addConstraint(Sketcher.Constraint("Vertical", 2))
sketch8.addConstraint(Sketcher.Constraint("Horizontal", 3))
sketch8.addConstraint(Sketcher.Constraint("PointOnObject", 0, 2, -1))
sketch8.addConstraint(Sketcher.Constraint("DistanceX", 1, 1, 1, 2, Q("750 mm")))
sketch8.addConstraint(Sketcher.Constraint("DistanceY", 0, 2, 0, 1, Q("2000 mm")))
sketch8.addConstraint(Sketcher.Constraint("DistanceX", -1, 1, 0, 2, Q("3813.192005 mm")))
pocket7 = body.newObject("PartDesign::Pocket", "Pocket006")
pocket7.Profile = sketch8
pocket7.Length = 210

doc.recompute()
